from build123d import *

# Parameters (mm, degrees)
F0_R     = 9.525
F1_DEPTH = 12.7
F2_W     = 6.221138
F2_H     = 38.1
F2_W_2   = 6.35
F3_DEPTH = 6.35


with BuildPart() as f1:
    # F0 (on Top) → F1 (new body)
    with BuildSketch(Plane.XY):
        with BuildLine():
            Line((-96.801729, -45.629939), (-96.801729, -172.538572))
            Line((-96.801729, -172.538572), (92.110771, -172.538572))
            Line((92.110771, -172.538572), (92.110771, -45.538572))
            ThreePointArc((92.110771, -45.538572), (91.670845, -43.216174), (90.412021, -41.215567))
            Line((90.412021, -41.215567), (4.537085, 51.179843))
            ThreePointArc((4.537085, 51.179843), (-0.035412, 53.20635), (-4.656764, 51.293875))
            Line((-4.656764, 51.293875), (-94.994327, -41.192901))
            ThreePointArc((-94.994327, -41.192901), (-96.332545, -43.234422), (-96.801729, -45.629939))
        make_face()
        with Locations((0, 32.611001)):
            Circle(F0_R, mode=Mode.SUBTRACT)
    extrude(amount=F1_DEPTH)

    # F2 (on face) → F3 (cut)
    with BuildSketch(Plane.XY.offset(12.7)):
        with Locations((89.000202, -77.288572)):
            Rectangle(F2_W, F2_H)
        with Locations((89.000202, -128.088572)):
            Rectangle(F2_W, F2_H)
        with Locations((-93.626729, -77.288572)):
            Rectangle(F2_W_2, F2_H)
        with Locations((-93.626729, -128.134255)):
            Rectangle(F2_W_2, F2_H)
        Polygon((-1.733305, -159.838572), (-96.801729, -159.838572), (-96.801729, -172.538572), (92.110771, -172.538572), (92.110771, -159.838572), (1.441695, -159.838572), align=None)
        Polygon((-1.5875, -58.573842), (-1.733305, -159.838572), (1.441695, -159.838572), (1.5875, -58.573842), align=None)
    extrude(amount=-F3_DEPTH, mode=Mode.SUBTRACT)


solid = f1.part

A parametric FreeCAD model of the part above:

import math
import FreeCAD as App
import Part
import Sketcher

V = App.Vector
Q = App.Units.Quantity


def add_polygon(sketch, points):
    """Adds a closed chain of lines whose ends are joined by coincident constraints."""
    first, n = sketch.GeometryCount, len(points)
    for a, b in zip(points, points[1:] + points[:1]):
        sketch.addGeometry(Part.LineSegment(App.Vector(*a, 0), App.Vector(*b, 0)), False)
    for i in range(n):
        sketch.addConstraint(Sketcher.Constraint("Coincident", first + i, 2, first + (i + 1) % n, 1))

doc = App.newDocument("Part")
params = doc.addObject("Spreadsheet::Sheet", "Params")
for row, (alias, value) in enumerate([
    ("sketch1_diameter", "0.75 in"),
    ("sketch1_height", "5 in"),
    ("sketch1_radius", "0.25 in"),
    ("sketch1_radius2", "0.2500001 in"),
    ("sketch1_width", "7.4375 in"),
    ("pad1_length", "0.5 in"),
    ("sketch2_height", "1.5 in"),
    ("sketch2_height2", "0.5 in"),
    ("sketch2_width", "0.25 in"),
    ("sketch2_width2", "7.4375 in"),
    ("sketch2_width3", "0.125 in"),
    ("pocket1_length", "0.25 in"),
], start=1):
    params.set(f"A{row}", alias)
    params.set(f"B{row}", "=" + value)
    params.setAlias(f"B{row}", alias)

body = doc.addObject("PartDesign::Body", "Body")

sketch1 = body.newObject("Sketcher::SketchObject", "Sketch")
sketch1.AttachmentSupport = (doc.getObject("XY_Plane"), [""])
sketch1.MapMode = "FlatFace"
sketch1.addGeometry([
    Part.LineSegment(V(-96.801729, -45.629939, 0), V(-96.801729, -172.538572, 0)),
    Part.LineSegment(V(-96.801729, -172.538572, 0), V(92.110771, -172.538572, 0)),
    Part.LineSegment(V(92.110771, -172.538572, 0), V(92.110771, -45.538572, 0)),
    Part.ArcOfCircle(Part.Circle(V(85.760779, -45.538569, 0), V(0, 0, 1), 6.349992), math.radians(-0.000028), math.radians(42.905297)),
    Part.LineSegment(V(90.412021, -41.215567, 0), V(4.537085, 51.179843, 0)),
    Part.ArcOfCircle(Part.Circle(V(-0.114165, 46.856839, 0), V(0, 0, 1), 6.349999), math.radians(42.905259), math.radians(135.673526)),
    Part.LineSegment(V(-4.656764, 51.293875, 0), V(-94.994327, -41.192901, 0)),
    Part.ArcOfCircle(Part.Circle(V(-90.451726, -45.62994, 0), V(0, 0, 1), 6.350003), math.radians(135.673522), math.radians(179.999992)),
    Part.Circle(V(0, 32.611001, 0), V(0, 0, 1), 9.525),
], False)
sketch1.addConstraint([
    Sketcher.Constraint("Coincident", 0, 2, 1, 1),
    Sketcher.Constraint("Coincident", 1, 2, 2, 1),
    Sketcher.Constraint("Coincident", 2, 2, 3, 1),
    Sketcher.Constraint("Coincident", 3, 2, 4, 1),
    Sketcher.Constraint("Coincident", 4, 2, 5, 1),
    Sketcher.Constraint("Coincident", 5, 2, 6, 1),
    Sketcher.Constraint("Coincident", 6, 2, 7, 1),
    Sketcher.Constraint("Coincident", 7, 2, 0, 1),
    Sketcher.Constraint("Vertical", 0),
    Sketcher.Constraint("Horizontal", 1),
    Sketcher.Constraint("Vertical", 2),
    Sketcher.Constraint("PointOnObject", 8, 3, -2),
    Sketcher.Constraint("Diameter", 8, Q("0.75 in")),
    Sketcher.Constraint("DistanceY", 2, 1, 2, 2, Q("5 in")),
    Sketcher.Constraint("Radius", 5, Q("0.25 in")),
    Sketcher.Constraint("Radius", 7, Q("0.2500001 in")),
    Sketcher.Constraint("DistanceY", 0, 2, 3, 3, Q("5.0000001 in")),
    Sketcher.Constraint("DistanceX", 1, 1, 1, 2, Q("7.4375 in")),
    Sketcher.Constraint("Radius", 3, 6.349992),
    Sketcher.Constraint("DistanceY", -1, 1, 8, 3, 32.611001),
    Sketcher.Constraint("DistanceY", 6, 2, -1, 1, 41.192901),
    Sketcher.Constraint("DistanceY", 3, 3, 3, 2, 4.323002),
    Sketcher.Constraint("DistanceX", 5, 2, 5, 3, 4.542599),
    Sketcher.Constraint("DistanceX", 6, 2, 7, 3, 4.542601),
    Sketcher.Constraint("DistanceY", 0, 2, 0, 1, 126.908633),
    Sketcher.Constraint("DistanceX", -1, 1, 3, 3, 85.760779),
    Sketcher.Constraint("DistanceY", 3, 3, -1, 1, 45.538569),
    Sketcher.Constraint("DistanceY", -1, 1, 5, 3, 46.856839),
    Sketcher.Constraint("DistanceX", 7, 3, 5, 3, 90.337561),
    Sketcher.Constraint("DistanceX", 5, 3, 4, 2, 4.65125),
])
sketch1.setExpression("Constraints[12]", "Params.sketch1_diameter")
sketch1.setExpression("Constraints[13]", "Params.sketch1_height")
sketch1.setExpression("Constraints[14]", "Params.sketch1_radius")
sketch1.setExpression("Constraints[15]", "Params.sketch1_radius2")
sketch1.setExpression("Constraints[17]", "Params.sketch1_width")
pad1 = body.newObject("PartDesign::Pad", "Pad")
pad1.Profile = sketch1
pad1.setExpression("Length", "Params.pad1_length")

sketch2 = body.newObject("Sketcher::SketchObject", "Sketch001")
sketch2.AttachmentSupport = (doc.getObject("XY_Plane"), [""])
sketch2.MapMode = "FlatFace"
sketch2.AttachmentOffset = App.Placement(V(0, 0, 0.5 * 25.4), App.Rotation())
add_polygon(sketch2, [(85.889633, -58.238572), (85.889633, -96.338572), (92.110771, -96.338572), (92.110771, -58.238572)])
add_polygon(sketch2, [(85.889633, -109.038572), (85.889633, -147.138572), (92.110771, -147.138572), (92.110771, -109.038572)])
add_polygon(sketch2, [(-96.801729, -58.238572), (-96.801729, -96.338572), (-90.451729, -96.338572), (-90.451729, -58.238572)])
add_polygon(sketch2, [(-96.801729, -109.084255), (-96.801729, -147.184255), (-90.451729, -147.184255), (-90.451729, -109.084255)])
add_polygon(sketch2, [(-96.801729, -159.838572), (-96.801729, -172.538572), (92.110771, -172.538572), (92.110771, -159.838572), (1.441695, -159.838572), (1.5875, -58.573842), (-1.5875, -58.573842), (-1.733305, -159.838572)])
sketch2.addConstraint([
    Sketcher.Constraint("Vertical", 0),
    Sketcher.Constraint("Horizontal", 1),
    Sketcher.Constraint("Vertical", 2),
    Sketcher.Constraint("Horizontal", 3),
    Sketcher.Constraint("Vertical", 4),
    Sketcher.Constraint("Horizontal", 5),
    Sketcher.Constraint("Vertical", 6),
    Sketcher.Constraint("Horizontal", 7),
    Sketcher.Constraint("Vertical", 8),
    Sketcher.Constraint("Horizontal", 9),
    Sketcher.Constraint("Vertical", 10),
    Sketcher.Constraint("Horizontal", 11),
    Sketcher.Constraint("Vertical", 12),
    Sketcher.Constraint("Horizontal", 13),
    Sketcher.Constraint("Vertical", 14),
    Sketcher.Constraint("Horizontal", 15),
    Sketcher.Constraint("Vertical", 16),
    Sketcher.Constraint("Horizontal", 17),
    Sketcher.Constraint("Vertical", 18),
    Sketcher.Constraint("Horizontal", 19),
    Sketcher.Constraint("Horizontal", 21),
    Sketcher.Constraint("Horizontal", 23),
    Sketcher.Constraint("Parallel", 20, 22),
    Sketcher.Constraint("Horizontal", 1, 2, 8, 2),
    Sketcher.Constraint("Horizontal", 3, 2, 10, 2),
    Sketcher.Constraint("Horizontal", 19, 2, 22, 2),
    Sketcher.Constraint("Vertical", 3, 2, 4, 2),
    Sketcher.Constraint("Vertical", 2, 2, 5, 2),
    Sketcher.Constraint("Vertical", 11, 2, 12, 2),
    Sketcher.Constraint("Vertical", 10, 2, 13, 2),
    Sketcher.Constraint("Vertical", 15, 2, 16, 2),
    Sketcher.Constraint("Vertical", 6, 2, 17, 2),
    Sketcher.Constraint("Equal", 2, 4),
    Sketcher.Constraint("Equal", 10, 12),
    Sketcher.Constraint("DistanceY", 0, 2, 0, 1, Q("1.5 in")),
    Sketcher.Constraint("DistanceY", 16, 2, 16, 1, Q("0.5 in")),
    Sketcher.Constraint("DistanceY", 4, 2, 0, 2, Q("2 in")),
    Sketcher.Constraint("DistanceY", 16, 2, 8, 2, Q("3 in")),
    Sketcher.Constraint("DistanceX", 9, 1, 9, 2, Q("0.25 in")),
    Sketcher.Constraint("DistanceX", 17, 1, 17, 2, Q("7.4375 in")),
    Sketcher.Constraint("DistanceX", 21, 2, 21, 1, Q("0.125 in")),
    Sketcher.Constraint("DistanceX", -1, 1, 20, 2, Q("0.0625 in")),
    Sketcher.Constraint("DistanceX", 1, 1, 1, 2, 6.221138),
    Sketcher.Constraint("DistanceX", 19, 2, 19, 1, 90.669076),
    Sketcher.Constraint("DistanceY", 0, 2, -1, 1, 96.338572),
    Sketcher.Constraint("DistanceX", -1, 1, 1, 2, 92.110771),
    Sketcher.Constraint("DistanceY", 20, 2, 3, 2, 0.33527),
    Sketcher.Constraint("DistanceY", 12, 2, -1, 1, 147.184255),
])
sketch2.setExpression("Constraints[58]", "Params.sketch2_height")
sketch2.setExpression("Constraints[59]", "Params.sketch2_height2")
sketch2.setExpression("Constraints[62]", "Params.sketch2_width")
sketch2.setExpression("Constraints[63]", "Params.sketch2_width2")
sketch2.setExpression("Constraints[64]", "Params.sketch2_width3")
pocket1 = body.newObject("PartDesign::Pocket", "Pocket")
pocket1.Profile = sketch2
pocket1.setExpression("Length", "Params.pocket1_length")

doc.recompute()
